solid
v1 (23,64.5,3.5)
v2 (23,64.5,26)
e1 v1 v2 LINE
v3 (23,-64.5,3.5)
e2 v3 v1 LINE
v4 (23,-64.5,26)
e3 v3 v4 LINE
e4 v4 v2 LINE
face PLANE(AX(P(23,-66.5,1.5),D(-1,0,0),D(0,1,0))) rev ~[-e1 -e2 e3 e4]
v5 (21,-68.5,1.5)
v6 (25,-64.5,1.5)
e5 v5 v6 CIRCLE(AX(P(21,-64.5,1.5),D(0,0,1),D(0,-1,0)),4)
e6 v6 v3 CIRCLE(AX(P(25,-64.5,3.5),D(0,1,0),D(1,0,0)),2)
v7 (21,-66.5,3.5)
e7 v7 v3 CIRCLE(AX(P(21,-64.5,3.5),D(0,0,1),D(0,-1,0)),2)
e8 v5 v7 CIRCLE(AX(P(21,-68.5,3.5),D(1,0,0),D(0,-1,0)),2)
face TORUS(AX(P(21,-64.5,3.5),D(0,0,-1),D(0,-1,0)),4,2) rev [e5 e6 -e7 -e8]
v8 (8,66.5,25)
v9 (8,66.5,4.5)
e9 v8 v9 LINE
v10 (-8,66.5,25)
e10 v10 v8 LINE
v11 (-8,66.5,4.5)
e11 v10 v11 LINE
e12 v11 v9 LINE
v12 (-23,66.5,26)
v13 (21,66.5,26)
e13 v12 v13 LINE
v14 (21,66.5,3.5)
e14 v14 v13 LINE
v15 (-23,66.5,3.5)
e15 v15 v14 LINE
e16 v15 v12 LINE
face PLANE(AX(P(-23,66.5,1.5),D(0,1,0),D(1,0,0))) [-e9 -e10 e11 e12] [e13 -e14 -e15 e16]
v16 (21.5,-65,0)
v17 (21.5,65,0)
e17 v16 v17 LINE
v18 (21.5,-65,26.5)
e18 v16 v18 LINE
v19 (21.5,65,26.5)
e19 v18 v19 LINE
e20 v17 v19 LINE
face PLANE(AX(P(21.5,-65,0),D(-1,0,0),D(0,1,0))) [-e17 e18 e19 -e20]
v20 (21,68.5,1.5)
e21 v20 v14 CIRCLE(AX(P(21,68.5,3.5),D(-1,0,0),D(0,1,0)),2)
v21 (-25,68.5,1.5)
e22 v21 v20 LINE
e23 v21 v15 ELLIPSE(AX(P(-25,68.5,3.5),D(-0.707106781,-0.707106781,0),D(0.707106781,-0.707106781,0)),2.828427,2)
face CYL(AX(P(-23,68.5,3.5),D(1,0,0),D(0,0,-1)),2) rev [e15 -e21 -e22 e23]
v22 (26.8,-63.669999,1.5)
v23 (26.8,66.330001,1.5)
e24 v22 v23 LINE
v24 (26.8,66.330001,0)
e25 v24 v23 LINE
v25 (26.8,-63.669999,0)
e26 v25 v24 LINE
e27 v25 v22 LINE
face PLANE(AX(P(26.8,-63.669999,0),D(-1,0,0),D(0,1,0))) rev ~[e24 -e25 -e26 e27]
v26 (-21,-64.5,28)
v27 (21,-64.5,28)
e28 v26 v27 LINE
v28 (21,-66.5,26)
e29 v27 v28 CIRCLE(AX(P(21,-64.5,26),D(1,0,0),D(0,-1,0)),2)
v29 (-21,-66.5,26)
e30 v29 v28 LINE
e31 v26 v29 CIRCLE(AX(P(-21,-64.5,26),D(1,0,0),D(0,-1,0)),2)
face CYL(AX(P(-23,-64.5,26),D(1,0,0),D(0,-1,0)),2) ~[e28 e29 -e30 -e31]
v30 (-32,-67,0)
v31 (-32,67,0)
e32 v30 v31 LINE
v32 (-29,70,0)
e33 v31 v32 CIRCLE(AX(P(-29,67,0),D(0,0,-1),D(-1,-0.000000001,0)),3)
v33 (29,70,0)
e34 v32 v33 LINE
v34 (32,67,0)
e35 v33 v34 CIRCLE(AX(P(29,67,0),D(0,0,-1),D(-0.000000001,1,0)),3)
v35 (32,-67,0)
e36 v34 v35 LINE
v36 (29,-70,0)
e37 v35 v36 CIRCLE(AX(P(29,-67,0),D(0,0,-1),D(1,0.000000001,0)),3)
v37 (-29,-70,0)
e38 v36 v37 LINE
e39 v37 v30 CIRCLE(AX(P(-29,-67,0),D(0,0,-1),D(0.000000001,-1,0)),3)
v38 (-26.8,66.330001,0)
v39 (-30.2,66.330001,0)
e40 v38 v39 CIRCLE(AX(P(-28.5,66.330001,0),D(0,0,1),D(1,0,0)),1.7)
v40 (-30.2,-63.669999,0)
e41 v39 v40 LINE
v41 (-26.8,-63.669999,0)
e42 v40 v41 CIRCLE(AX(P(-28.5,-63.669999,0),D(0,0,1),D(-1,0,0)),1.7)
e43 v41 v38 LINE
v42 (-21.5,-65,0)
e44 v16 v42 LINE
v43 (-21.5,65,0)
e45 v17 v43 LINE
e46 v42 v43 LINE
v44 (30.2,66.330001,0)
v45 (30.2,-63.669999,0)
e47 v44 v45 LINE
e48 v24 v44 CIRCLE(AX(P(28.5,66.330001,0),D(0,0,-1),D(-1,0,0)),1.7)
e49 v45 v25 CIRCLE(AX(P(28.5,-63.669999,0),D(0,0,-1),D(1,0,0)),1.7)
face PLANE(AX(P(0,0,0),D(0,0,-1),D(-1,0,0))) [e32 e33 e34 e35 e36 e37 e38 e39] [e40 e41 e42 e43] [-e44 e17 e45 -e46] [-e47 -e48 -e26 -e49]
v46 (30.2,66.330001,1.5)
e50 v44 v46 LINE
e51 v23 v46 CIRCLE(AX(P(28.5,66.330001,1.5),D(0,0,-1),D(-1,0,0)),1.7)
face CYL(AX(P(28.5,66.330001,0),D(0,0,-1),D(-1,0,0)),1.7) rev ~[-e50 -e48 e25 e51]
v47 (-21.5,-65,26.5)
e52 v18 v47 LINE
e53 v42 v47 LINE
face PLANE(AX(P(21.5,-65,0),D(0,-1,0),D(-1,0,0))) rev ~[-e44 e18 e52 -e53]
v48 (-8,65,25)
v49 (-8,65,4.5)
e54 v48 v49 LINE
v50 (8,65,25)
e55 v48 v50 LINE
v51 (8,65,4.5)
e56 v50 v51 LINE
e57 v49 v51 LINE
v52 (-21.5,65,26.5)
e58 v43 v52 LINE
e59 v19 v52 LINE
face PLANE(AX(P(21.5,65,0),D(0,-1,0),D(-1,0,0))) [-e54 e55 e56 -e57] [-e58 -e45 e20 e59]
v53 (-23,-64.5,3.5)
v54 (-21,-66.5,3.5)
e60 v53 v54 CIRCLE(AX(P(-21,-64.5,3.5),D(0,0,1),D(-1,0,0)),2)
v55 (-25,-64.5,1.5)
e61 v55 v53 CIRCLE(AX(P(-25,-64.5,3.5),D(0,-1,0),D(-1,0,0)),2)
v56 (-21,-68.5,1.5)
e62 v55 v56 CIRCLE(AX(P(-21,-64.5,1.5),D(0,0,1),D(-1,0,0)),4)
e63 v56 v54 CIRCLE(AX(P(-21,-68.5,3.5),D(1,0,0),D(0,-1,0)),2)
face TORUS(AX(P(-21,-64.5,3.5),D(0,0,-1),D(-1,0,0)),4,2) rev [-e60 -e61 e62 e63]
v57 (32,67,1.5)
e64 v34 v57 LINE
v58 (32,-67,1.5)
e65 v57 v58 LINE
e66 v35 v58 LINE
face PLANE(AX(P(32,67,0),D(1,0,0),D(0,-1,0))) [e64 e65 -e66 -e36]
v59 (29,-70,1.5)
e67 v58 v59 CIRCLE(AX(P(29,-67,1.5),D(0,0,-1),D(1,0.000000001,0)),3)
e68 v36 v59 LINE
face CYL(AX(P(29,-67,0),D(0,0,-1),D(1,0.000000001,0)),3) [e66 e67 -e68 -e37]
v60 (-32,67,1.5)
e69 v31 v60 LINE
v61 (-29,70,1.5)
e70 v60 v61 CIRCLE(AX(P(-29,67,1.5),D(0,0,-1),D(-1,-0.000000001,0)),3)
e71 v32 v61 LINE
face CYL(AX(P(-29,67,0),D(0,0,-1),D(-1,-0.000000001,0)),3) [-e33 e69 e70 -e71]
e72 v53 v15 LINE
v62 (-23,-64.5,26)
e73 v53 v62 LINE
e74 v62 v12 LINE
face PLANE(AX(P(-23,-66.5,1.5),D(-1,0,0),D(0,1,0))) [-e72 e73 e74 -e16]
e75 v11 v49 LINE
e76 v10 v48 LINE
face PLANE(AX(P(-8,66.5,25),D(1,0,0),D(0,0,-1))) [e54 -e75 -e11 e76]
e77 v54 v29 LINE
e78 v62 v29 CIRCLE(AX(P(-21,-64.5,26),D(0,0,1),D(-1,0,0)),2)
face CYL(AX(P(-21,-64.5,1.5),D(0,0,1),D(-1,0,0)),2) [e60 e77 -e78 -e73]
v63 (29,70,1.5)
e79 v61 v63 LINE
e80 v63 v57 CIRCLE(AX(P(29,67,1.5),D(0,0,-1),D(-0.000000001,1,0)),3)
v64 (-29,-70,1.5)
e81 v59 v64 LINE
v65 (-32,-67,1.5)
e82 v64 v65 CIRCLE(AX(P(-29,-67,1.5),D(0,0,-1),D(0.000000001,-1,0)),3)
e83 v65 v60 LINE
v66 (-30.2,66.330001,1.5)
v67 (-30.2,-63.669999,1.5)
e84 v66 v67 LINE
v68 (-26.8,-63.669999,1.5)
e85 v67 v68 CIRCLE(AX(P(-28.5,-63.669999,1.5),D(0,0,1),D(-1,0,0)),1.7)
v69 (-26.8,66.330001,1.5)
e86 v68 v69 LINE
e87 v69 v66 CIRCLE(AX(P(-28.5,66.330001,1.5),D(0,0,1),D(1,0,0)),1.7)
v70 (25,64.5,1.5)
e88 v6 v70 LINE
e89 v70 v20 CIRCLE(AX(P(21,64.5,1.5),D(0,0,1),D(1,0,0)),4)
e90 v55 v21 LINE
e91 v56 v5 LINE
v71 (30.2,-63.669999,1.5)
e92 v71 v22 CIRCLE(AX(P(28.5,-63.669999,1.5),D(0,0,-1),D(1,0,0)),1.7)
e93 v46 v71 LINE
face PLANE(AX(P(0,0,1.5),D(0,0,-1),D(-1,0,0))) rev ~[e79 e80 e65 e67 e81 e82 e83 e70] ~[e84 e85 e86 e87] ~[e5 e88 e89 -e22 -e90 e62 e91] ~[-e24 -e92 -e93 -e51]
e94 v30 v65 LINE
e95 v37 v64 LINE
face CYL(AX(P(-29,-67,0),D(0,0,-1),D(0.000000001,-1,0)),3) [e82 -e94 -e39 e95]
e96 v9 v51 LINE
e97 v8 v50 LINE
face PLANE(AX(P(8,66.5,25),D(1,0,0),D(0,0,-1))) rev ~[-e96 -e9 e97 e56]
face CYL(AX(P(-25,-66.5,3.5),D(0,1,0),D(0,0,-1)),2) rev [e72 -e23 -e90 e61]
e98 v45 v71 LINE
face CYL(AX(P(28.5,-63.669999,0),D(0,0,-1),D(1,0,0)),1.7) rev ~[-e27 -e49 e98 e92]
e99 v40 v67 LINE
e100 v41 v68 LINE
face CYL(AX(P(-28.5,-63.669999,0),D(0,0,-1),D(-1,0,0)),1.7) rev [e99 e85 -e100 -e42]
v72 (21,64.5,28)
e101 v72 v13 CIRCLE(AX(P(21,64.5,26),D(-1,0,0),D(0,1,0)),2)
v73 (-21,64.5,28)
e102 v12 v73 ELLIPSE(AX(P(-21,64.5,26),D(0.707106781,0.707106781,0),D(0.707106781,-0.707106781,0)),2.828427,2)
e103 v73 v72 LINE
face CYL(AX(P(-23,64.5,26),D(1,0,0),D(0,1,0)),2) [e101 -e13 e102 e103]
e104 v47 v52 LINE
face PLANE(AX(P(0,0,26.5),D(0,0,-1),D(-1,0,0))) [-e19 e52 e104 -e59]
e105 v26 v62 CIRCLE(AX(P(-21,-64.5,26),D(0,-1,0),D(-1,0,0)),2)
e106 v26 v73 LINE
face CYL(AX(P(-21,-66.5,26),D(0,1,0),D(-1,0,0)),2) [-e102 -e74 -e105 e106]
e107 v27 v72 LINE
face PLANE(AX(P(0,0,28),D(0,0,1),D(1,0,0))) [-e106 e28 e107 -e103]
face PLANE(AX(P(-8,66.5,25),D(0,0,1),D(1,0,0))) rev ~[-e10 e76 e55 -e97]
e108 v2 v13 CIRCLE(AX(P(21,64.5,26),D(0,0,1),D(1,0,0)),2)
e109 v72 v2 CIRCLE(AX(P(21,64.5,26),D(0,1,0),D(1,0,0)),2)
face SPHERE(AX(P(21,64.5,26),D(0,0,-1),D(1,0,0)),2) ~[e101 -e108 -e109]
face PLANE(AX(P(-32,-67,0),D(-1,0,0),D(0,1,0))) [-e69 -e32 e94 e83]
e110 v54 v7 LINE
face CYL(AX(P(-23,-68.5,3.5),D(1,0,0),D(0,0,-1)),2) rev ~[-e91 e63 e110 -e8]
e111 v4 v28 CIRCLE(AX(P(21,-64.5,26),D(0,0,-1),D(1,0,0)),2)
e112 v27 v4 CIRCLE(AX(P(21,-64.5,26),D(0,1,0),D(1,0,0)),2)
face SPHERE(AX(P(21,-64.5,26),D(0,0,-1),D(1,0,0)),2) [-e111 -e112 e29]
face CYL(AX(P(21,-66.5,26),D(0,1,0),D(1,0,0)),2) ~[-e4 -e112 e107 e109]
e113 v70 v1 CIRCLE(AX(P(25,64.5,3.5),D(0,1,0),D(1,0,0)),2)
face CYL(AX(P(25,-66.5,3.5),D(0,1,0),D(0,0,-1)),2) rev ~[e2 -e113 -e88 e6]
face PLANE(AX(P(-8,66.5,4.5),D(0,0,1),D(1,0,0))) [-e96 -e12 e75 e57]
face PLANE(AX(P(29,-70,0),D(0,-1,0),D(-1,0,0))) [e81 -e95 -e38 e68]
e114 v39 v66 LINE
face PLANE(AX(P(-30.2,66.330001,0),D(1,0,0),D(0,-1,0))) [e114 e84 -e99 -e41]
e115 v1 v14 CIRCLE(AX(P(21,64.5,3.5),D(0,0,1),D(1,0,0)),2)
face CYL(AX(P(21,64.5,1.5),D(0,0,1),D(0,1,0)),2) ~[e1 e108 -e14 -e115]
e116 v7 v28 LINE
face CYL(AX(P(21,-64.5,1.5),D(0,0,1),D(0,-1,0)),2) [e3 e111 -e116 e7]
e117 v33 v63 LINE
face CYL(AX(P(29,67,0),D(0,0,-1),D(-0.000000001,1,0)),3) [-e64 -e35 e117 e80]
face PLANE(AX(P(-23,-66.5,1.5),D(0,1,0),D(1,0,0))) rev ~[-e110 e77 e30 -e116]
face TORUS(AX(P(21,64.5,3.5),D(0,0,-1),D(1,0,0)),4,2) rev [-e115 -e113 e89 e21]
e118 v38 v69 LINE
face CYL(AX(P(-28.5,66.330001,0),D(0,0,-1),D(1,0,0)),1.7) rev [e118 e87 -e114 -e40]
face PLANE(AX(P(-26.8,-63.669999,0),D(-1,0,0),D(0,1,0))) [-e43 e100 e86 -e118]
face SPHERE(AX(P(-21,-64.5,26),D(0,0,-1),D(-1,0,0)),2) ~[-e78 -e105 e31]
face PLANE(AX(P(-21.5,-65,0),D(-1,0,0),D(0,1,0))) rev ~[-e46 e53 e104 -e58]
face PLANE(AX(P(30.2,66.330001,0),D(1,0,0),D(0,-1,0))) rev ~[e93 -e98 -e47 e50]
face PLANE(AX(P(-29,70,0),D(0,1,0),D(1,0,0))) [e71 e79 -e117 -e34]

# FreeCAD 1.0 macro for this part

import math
import FreeCAD as App
import Part
import Sketcher
Q = App.Units.Quantity


def edges_at(feature, points):
    """Names of the edges that pass closest to the given points."""
    edges = feature.Shape.Edges
    near = lambda p: min(range(len(edges)), key=lambda i: edges[i].distToShape(Part.Vertex(*p))[0])
    return sorted({f"Edge{near(p) + 1}" for p in points})


def add_polygon(sketch, points):
    """Adds a closed chain of lines whose ends are joined by coincident constraints."""
    first, n = sketch.GeometryCount, len(points)
    for a, b in zip(points, points[1:] + points[:1]):
        sketch.addGeometry(Part.LineSegment(App.Vector(*a, 0), App.Vector(*b, 0)), False)
    for i in range(n):
        sketch.addConstraint(Sketcher.Constraint("Coincident", first + i, 2, first + (i + 1) % n, 1))

doc = App.newDocument("Part")
params = doc.addObject("Spreadsheet::Sheet", "Params")
for row, (alias, value) in enumerate([
    ("sketch1_radius", "3 mm"),
    ("sketch1_width", "58 mm"),
    ("sketch1_height", "134 mm"),
    ("pad1_length", "1.5 mm"),
    ("sketch2_width", "46 mm"),
    ("sketch2_height", "133 mm"),
    ("pad2_length", "26.5 mm"),
    ("sketch3_width", "43 mm"),
    ("sketch3_height", "130 mm"),
    ("pocket1_length", "26.5 mm"),
    ("sketch4_radius", "1.7 mm"),
    ("sketch4_height", "130 mm"),
    ("pocket2_length", "1.5 mm"),
    ("sketch5_width", "16 mm"),
    ("sketch5_height", "20.5 mm"),
    ("pocket3_length", "1.5 mm"),
    ("fillet_radius", "2 mm"),
], start=1):
    params.set(f"A{row}", alias)
    params.set(f"B{row}", "=" + value)
    params.setAlias(f"B{row}", alias)

body = doc.addObject("PartDesign::Body", "Body")

sketch1 = body.newObject("Sketcher::SketchObject", "Sketch")
sketch1.AttachmentSupport = (doc.getObject("XY_Plane"), [""])
sketch1.MapMode = "FlatFace"
sketch1.addGeometry([
    Part.LineSegment(App.Vector(29, 70, 0), App.Vector(-29, 70, 0)),
    Part.ArcOfCircle(Part.Circle(App.Vector(-29, 67, 0), App.Vector(0, 0, 1), 3), math.radians(90), math.radians(180)),
    Part.LineSegment(App.Vector(-32, 67, 0), App.Vector(-32, -67, 0)),
    Part.ArcOfCircle(Part.Circle(App.Vector(-29, -67, 0), App.Vector(0, 0, 1), 3), math.radians(180), math.radians(270)),
    Part.LineSegment(App.Vector(-29, -70, 0), App.Vector(29, -70, 0)),
    Part.ArcOfCircle(Part.Circle(App.Vector(29, -67, 0), App.Vector(0, 0, 1), 3), math.radians(-90), math.radians(0)),
    Part.LineSegment(App.Vector(32, -67, 0), App.Vector(32, 67, 0)),
    Part.ArcOfCircle(Part.Circle(App.Vector(29, 67, 0), App.Vector(0, 0, 1), 3), math.radians(0), math.radians(90)),
], False)
sketch1.addConstraint([
    Sketcher.Constraint("Tangent", 0, 2, 1, 1),
    Sketcher.Constraint("Tangent", 1, 2, 2, 1),
    Sketcher.Constraint("Tangent", 2, 2, 3, 1),
    Sketcher.Constraint("Tangent", 3, 2, 4, 1),
    Sketcher.Constraint("Tangent", 4, 2, 5, 1),
    Sketcher.Constraint("Tangent", 5, 2, 6, 1),
    Sketcher.Constraint("Tangent", 6, 2, 7, 1),
    Sketcher.Constraint("Tangent", 7, 2, 0, 1),
    Sketcher.Constraint("Horizontal", 0),
    Sketcher.Constraint("Vertical", 2),
    Sketcher.Constraint("Horizontal", 4),
    Sketcher.Constraint("Vertical", 6),
    Sketcher.Constraint("Equal", 1, 3),
    Sketcher.Constraint("Equal", 3, 5),
    Sketcher.Constraint("Equal", 5, 7),
    Sketcher.Constraint("Symmetric", 1, 3, 5, 3, -1, 1),
    Sketcher.Constraint("Radius", 1, Q("3 mm")),
    Sketcher.Constraint("DistanceX", 0, 2, 0, 1, Q("58 mm")),
    Sketcher.Constraint("DistanceY", 2, 2, 2, 1, Q("134 mm")),
])
sketch1.setExpression("Constraints[16]", "Params.sketch1_radius")
sketch1.setExpression("Constraints[17]", "Params.sketch1_width")
sketch1.setExpression("Constraints[18]", "Params.sketch1_height")
pad1 = body.newObject("PartDesign::Pad", "Pad")
pad1.Profile = sketch1
pad1.setExpression("Length", "Params.pad1_length")

sketch2 = body.newObject("Sketcher::SketchObject", "Sketch001")
sketch2.AttachmentSupport = (doc.getObject("XY_Plane"), [""])
sketch2.MapMode = "FlatFace"
sketch2.AttachmentOffset = App.Placement(App.Vector(0, 0, 1.5), App.Rotation())
add_polygon(sketch2, [(-23, 66), (-23, -66), (23, -66), (23, 66)])
sketch2.addConstraint([
    Sketcher.Constraint("Vertical", 0),
    Sketcher.Constraint("Horizontal", 1),
    Sketcher.Constraint("Vertical", 2),
    Sketcher.Constraint("Horizontal", 3),
    Sketcher.Constraint("Symmetric", 0, 2, 2, 2, -1, 1),
    Sketcher.Constraint("DistanceX", 1, 1, 1, 2, Q("46 mm")),
    Sketcher.Constraint("DistanceY", 0, 2, 0, 1, Q("133 mm")),
])
sketch2.setExpression("Constraints[9]", "Params.sketch2_width")
sketch2.setExpression("Constraints[10]", "Params.sketch2_height")
pad2 = body.newObject("PartDesign::Pad", "Pad001")
pad2.Profile = sketch2
pad2.setExpression("Length", "Params.pad2_length")

sketch3 = body.newObject("Sketcher::SketchObject", "Sketch002")
sketch3.AttachmentSupport = (doc.getObject("XY_Plane"), [""])
sketch3.MapMode = "FlatFace"
add_polygon(sketch3, [(22, 65), (22, -65), (-22, -65), (-22, 65)])
sketch3.addConstraint([
    Sketcher.Constraint("Vertical", 0),
    Sketcher.Constraint("Horizontal", 1),
    Sketcher.Constraint("Vertical", 2),
    Sketcher.Constraint("Horizontal", 3),
    Sketcher.Constraint("Symmetric", 0, 2, 2, 2, -1, 1),
    Sketcher.Constraint("DistanceX", 1, 2, 1, 1, Q("43 mm")),
    Sketcher.Constraint("DistanceY", 0, 2, 0, 1, Q("130 mm")),
])
sketch3.setExpression("Constraints[9]", "Params.sketch3_width")
sketch3.setExpression("Constraints[10]", "Params.sketch3_height")
pocket1 = body.newObject("PartDesign::Pocket", "Pocket")
pocket1.Profile = sketch3
pocket1.setExpression("Length", "Params.pocket1_length")
pocket1.Reversed = True

sketch4 = body.newObject("Sketcher::SketchObject", "Sketch003")
sketch4.AttachmentSupport = (doc.getObject("XY_Plane"), [""])
sketch4.MapMode = "FlatFace"
sketch4.addGeometry([
    Part.LineSegment(App.Vector(30.2, 66.3, 0), App.Vector(30.2, -63.7, 0)),
    Part.ArcOfCircle(Part.Circle(App.Vector(28.5, -63.7, 0), App.Vector(0, 0, 1), 1.7), math.radians(180), math.radians(360)),
    Part.LineSegment(App.Vector(26.8, -63.7, 0), App.Vector(26.8, 66.3, 0)),
    Part.ArcOfCircle(Part.Circle(App.Vector(28.5, 66.3, 0), App.Vector(0, 0, 1), 1.7), math.radians(0), math.radians(180)),
    Part.LineSegment(App.Vector(-30.2, -63.7, 0), App.Vector(-30.2, 66.3, 0)),
    Part.ArcOfCircle(Part.Circle(App.Vector(-28.5, 66.3, 0), App.Vector(0, 0, 1), 1.7), math.radians(0), math.radians(180)),
    Part.LineSegment(App.Vector(-26.8, 66.3, 0), App.Vector(-26.8, -63.7, 0)),
    Part.ArcOfCircle(Part.Circle(App.Vector(-28.5, -63.7, 0), App.Vector(0, 0, 1), 1.7), math.radians(180), math.radians(360)),
], False)
sketch4.addConstraint([
    Sketcher.Constraint("Tangent", 0, 2, 1, 2),
    Sketcher.Constraint("Tangent", 1, 1, 2, 1),
    Sketcher.Constraint("Tangent", 2, 2, 3, 2),
    Sketcher.Constraint("Tangent", 3, 1, 0, 1),
    Sketcher.Constraint("Tangent", 4, 2, 5, 2),
    Sketcher.Constraint("Tangent", 5, 1, 6, 1),
    Sketcher.Constraint("Tangent", 6, 2, 7, 2),
    Sketcher.Constraint("Tangent", 7, 1, 4, 1),
    Sketcher.Constraint("Vertical", 0),
    Sketcher.Constraint("Vertical", 2),
    Sketcher.Constraint("Vertical", 4),
    Sketcher.Constraint("Vertical", 6),
    Sketcher.Constraint("Equal", 3, 5),
    Sketcher.Constraint("Symmetric", 3, 3, 5, 3, -2),
    Sketcher.Constraint("Horizontal", 1, 3, 7, 3),
    Sketcher.Constraint("Radius", 1, Q("1.7 mm")),
    Sketcher.Constraint("DistanceY", 0, 2, 0, 1, Q("130 mm")),
    Sketcher.Constraint("DistanceX", 5, 3, 3, 3, Q("57 mm")),
    Sketcher.Constraint("DistanceY", 1, 3, -1, 1, Q("63.669999 mm")),
])
sketch4.setExpression("Constraints[15]", "Params.sketch4_radius")
sketch4.setExpression("Constraints[16]", "Params.sketch4_height")
pocket2 = body.newObject("PartDesign::Pocket", "Pocket001")
pocket2.Profile = sketch4
pocket2.setExpression("Length", "Params.pocket2_length")
pocket2.Reversed = True

sketch5 = body.newObject("Sketcher::SketchObject", "Sketch004")
sketch5.AttachmentSupport = (doc.getObject("XZ_Plane"), [""])
sketch5.MapMode = "FlatFace"
sketch5.AttachmentOffset = App.Placement(App.Vector(0, 0, -66.5), App.Rotation())
add_polygon(sketch5, [(-8, 4), (-8, 25), (8, 25), (8, 4)])
sketch5.addConstraint([
    Sketcher.Constraint("Vertical", 0),
    Sketcher.Constraint("Horizontal", 1),
    Sketcher.Constraint("Vertical", 2),
    Sketcher.Constraint("Horizontal", 3),
    Sketcher.Constraint("DistanceX", 1, 1, 1, 2, Q("16 mm")),
    Sketcher.Constraint("DistanceY", 0, 1, 0, 2, Q("20.5 mm")),
    Sketcher.Constraint("DistanceX", 0, 2, -1, 1, Q("8 mm")),
    Sketcher.Constraint("DistanceY", -1, 1, 0, 2, Q("25 mm")),
])
sketch5.setExpression("Constraints[8]", "Params.sketch5_width")
sketch5.setExpression("Constraints[9]", "Params.sketch5_height")
pocket3 = body.newObject("PartDesign::Pocket", "Pocket002")
pocket3.Profile = sketch5
pocket3.setExpression("Length", "Params.pocket3_length")
pocket3.Reversed = True
doc.recompute()

fillet = body.newObject("PartDesign::Fillet", "Fillet")
fillet.Base = (pocket3, edges_at(pocket3, [
    (23, 0, 1.5),
    (23, -66.5, 14.75),
    (0, 66.5, 1.5),
    (23, 66.5, 14.75),
    (-23, 0, 1.5),
    (0, -66.5, 1.5),
    (-23, -66.5, 14.75),
    (23, 0, 28),
    (0, 66.5, 28),
    (-23, 0, 28),
    (0, -66.5, 28),
]))
fillet.setExpression("Radius", "Params.fillet_radius")

doc.recompute()
